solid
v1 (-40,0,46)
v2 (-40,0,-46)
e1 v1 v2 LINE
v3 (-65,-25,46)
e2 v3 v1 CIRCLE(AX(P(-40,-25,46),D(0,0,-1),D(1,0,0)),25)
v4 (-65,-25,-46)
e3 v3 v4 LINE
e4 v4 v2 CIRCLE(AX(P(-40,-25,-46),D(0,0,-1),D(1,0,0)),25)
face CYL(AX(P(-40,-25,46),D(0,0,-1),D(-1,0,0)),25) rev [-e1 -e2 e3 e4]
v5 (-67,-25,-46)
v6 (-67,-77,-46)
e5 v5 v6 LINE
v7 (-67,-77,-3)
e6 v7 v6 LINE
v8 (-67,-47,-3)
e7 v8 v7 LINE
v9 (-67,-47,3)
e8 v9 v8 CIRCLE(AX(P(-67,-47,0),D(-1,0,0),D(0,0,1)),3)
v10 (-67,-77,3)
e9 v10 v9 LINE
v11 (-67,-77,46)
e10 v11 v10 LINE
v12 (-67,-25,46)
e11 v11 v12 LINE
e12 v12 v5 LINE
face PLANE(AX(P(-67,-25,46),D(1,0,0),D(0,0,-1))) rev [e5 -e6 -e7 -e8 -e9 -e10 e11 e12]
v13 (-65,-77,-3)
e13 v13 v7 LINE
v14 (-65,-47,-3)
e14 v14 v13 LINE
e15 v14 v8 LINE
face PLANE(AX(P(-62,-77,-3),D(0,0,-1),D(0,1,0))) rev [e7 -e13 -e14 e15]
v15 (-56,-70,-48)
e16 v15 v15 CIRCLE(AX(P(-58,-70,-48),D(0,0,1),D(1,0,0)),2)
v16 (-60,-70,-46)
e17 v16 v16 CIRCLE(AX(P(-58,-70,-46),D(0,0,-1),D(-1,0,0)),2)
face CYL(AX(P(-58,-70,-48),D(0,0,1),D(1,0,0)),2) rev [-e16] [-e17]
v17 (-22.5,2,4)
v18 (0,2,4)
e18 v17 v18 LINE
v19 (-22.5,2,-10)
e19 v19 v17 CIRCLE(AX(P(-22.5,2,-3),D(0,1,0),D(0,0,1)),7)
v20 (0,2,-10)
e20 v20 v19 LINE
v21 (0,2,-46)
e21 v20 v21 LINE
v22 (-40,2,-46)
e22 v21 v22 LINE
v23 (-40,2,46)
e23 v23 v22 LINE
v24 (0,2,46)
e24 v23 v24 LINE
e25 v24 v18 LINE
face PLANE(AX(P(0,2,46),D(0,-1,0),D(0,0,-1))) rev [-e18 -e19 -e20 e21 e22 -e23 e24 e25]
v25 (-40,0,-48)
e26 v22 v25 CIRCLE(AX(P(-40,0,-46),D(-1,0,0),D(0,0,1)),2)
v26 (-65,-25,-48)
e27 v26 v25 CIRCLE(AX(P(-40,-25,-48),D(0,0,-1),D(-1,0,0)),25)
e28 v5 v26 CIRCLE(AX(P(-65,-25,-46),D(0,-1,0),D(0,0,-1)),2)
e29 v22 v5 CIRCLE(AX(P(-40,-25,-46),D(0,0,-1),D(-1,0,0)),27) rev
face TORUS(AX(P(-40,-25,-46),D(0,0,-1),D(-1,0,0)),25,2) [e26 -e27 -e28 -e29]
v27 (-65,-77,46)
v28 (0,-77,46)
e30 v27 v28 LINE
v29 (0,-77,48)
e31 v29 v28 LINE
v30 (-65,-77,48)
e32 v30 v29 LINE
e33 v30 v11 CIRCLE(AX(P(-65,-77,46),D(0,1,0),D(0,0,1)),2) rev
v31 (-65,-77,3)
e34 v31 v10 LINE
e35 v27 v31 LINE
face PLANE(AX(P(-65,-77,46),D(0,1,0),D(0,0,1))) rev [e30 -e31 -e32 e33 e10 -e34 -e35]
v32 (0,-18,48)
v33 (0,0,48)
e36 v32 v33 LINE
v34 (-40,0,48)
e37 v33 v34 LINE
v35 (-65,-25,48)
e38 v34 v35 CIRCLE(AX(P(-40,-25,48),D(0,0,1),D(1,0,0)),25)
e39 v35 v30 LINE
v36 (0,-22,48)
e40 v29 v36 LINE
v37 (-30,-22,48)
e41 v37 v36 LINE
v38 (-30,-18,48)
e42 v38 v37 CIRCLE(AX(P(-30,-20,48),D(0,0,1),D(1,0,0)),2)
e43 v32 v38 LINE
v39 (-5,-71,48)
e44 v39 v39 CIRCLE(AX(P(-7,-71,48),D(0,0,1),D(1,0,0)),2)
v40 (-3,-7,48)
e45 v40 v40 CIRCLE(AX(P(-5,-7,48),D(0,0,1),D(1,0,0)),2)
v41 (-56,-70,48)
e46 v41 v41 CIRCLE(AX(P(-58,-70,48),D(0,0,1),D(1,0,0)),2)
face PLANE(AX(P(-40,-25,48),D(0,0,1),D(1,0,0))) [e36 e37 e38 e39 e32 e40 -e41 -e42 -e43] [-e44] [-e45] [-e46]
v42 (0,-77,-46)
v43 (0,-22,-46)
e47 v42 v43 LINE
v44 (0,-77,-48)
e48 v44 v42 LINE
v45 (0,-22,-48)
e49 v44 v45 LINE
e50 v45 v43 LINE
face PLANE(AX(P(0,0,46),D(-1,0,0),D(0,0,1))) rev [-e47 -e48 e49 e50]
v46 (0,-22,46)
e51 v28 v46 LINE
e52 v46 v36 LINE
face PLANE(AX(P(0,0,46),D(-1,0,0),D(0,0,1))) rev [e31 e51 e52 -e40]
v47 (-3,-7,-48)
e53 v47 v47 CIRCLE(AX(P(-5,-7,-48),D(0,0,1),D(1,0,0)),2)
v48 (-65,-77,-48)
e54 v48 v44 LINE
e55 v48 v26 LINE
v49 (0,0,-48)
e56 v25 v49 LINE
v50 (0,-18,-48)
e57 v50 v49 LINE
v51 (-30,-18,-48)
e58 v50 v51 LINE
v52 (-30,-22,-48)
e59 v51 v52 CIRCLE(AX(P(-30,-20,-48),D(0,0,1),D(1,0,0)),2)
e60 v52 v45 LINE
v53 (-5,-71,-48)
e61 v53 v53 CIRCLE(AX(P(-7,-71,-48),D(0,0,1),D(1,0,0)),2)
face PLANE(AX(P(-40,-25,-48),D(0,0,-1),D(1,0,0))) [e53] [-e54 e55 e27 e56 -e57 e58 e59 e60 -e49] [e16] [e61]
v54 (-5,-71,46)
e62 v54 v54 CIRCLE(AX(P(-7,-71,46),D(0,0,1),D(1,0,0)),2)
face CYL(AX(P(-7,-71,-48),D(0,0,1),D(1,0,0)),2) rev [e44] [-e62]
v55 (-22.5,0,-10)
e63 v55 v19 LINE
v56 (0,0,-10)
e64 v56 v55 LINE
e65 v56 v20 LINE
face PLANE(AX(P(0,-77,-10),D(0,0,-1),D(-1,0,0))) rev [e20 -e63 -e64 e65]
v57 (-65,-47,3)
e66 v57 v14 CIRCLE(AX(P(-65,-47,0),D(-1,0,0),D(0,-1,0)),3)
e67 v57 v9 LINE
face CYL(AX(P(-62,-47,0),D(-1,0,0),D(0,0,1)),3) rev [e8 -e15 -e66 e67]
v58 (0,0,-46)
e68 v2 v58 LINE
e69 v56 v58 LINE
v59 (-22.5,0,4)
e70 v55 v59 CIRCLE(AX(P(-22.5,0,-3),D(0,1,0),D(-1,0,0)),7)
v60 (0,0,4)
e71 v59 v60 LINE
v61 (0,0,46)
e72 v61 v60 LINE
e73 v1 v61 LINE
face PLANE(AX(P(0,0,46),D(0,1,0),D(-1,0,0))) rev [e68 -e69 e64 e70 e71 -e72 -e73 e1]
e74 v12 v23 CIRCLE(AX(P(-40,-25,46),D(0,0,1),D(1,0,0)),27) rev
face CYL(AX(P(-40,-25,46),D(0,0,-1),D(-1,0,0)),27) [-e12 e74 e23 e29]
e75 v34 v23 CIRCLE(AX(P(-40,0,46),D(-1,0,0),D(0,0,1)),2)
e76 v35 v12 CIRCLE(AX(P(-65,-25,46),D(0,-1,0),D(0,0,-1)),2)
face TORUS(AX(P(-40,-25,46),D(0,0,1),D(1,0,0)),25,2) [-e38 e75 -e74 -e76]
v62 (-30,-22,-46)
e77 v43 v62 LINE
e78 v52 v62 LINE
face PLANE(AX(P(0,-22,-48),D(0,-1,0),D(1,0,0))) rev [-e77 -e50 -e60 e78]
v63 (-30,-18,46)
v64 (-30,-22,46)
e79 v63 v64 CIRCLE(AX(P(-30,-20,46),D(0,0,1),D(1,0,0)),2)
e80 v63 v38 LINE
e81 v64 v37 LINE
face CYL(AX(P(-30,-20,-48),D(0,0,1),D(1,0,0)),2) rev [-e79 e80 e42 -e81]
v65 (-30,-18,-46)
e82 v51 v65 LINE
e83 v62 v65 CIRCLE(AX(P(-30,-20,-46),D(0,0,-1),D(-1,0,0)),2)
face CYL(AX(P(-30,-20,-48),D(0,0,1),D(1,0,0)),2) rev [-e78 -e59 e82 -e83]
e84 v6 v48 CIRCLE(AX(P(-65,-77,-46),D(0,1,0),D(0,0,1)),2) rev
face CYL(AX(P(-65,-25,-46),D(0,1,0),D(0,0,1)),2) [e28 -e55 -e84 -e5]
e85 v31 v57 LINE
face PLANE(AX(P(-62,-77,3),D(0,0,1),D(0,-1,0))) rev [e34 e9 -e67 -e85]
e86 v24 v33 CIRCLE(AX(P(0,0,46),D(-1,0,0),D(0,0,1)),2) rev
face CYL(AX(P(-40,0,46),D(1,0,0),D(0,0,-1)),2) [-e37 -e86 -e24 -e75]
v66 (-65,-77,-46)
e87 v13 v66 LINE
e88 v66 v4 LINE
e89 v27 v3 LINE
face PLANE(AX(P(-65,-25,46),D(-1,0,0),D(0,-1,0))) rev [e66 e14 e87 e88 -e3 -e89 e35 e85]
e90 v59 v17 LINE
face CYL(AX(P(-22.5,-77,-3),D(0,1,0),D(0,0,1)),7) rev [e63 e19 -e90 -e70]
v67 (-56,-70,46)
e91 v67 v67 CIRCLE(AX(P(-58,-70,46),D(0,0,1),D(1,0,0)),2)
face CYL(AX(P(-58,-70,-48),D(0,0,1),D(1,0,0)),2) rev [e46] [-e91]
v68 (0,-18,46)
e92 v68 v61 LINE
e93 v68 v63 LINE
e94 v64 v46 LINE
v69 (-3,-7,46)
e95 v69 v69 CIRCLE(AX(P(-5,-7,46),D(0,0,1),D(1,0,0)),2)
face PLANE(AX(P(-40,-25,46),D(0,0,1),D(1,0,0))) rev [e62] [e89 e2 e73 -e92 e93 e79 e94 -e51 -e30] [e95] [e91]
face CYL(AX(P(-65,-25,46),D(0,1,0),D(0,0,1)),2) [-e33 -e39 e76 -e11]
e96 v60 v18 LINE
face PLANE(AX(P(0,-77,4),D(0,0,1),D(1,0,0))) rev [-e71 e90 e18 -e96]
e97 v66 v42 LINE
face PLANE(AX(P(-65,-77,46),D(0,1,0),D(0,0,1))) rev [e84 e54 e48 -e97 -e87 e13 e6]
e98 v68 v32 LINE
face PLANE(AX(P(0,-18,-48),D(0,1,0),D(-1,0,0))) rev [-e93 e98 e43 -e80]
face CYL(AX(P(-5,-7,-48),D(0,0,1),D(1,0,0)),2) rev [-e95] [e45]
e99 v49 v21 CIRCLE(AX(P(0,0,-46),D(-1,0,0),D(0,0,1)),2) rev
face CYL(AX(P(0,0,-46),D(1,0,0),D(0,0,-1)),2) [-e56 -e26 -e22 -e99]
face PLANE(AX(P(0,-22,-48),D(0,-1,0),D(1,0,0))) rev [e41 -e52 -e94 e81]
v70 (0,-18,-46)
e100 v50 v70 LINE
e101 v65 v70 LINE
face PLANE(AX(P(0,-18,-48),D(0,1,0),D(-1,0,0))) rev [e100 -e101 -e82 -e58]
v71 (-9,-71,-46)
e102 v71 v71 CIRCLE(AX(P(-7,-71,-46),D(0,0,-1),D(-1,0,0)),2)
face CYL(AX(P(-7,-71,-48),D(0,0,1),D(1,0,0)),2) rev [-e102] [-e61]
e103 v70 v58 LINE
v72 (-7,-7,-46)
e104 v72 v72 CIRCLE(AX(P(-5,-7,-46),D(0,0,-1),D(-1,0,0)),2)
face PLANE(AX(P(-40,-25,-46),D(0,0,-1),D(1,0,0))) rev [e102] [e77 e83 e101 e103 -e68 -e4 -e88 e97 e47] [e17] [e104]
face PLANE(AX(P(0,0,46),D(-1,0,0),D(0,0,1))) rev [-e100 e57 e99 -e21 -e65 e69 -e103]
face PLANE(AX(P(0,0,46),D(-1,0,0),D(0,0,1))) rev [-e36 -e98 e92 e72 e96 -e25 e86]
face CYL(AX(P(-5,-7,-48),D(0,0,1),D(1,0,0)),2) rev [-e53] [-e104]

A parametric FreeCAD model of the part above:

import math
import FreeCAD as App
import Part
import Sketcher
from FreeCAD import Vector


def edges_at(feature, points):
    """Names of the edges that pass closest to the given points."""
    edges = feature.Shape.Edges
    near = lambda p: min(range(len(edges)), key=lambda i: edges[i].distToShape(Part.Vertex(*p))[0])
    return sorted({f"Edge{near(p) + 1}" for p in points})

doc = App.newDocument("Part")
body = doc.addObject("PartDesign::Body", "Body")

# Sketch on XY plane
sketch1 = body.newObject("Sketcher::SketchObject", "Sketch")
sketch1.AttachmentSupport = (doc.getObject("XY_Plane"), [""])
sketch1.MapMode = "FlatFace"
sketch1.addGeometry(Part.LineSegment(Vector(-40, 0, 0), Vector(0, 0, 0)), False)
sketch1.addGeometry(Part.LineSegment(Vector(0, 0, 0), Vector(0, 2, 0)), False)
sketch1.addGeometry(Part.LineSegment(Vector(0, 2, 0), Vector(-40, 2, 0)), False)
sketch1.addGeometry(Part.ArcOfCircle(Part.Circle(Vector(-40, -25, 0), Vector(0, 0, 1), 27), math.radians(90), math.radians(180)), False)
sketch1.addGeometry(Part.LineSegment(Vector(-67, -25, 0), Vector(-67, -77, 0)), False)
sketch1.addGeometry(Part.LineSegment(Vector(-67, -77, 0), Vector(-65, -77, 0)), False)
sketch1.addGeometry(Part.LineSegment(Vector(-65, -77, 0), Vector(-65, -25, 0)), False)
sketch1.addGeometry(Part.ArcOfCircle(Part.Circle(Vector(-40, -25, 0), Vector(0, 0, 1), 25), math.radians(90), math.radians(180)), False)
sketch1.addConstraint(Sketcher.Constraint("Coincident", 0, 2, 1, 1))
sketch1.addConstraint(Sketcher.Constraint("Coincident", 1, 2, 2, 1))
sketch1.addConstraint(Sketcher.Constraint("Tangent", 2, 2, 3, 1))
sketch1.addConstraint(Sketcher.Constraint("Tangent", 3, 2, 4, 1))
sketch1.addConstraint(Sketcher.Constraint("Coincident", 4, 2, 5, 1))
sketch1.addConstraint(Sketcher.Constraint("Coincident", 5, 2, 6, 1))
sketch1.addConstraint(Sketcher.Constraint("Tangent", 6, 2, 7, 2))
sketch1.addConstraint(Sketcher.Constraint("Tangent", 7, 1, 0, 1))
sketch1.addConstraint(Sketcher.Constraint("Horizontal", 0))
sketch1.addConstraint(Sketcher.Constraint("Vertical", 1))
sketch1.addConstraint(Sketcher.Constraint("Horizontal", 2))
sketch1.addConstraint(Sketcher.Constraint("Vertical", 4))
sketch1.addConstraint(Sketcher.Constraint("Horizontal", 5))
sketch1.addConstraint(Sketcher.Constraint("Vertical", 6))
sketch1.addConstraint(Sketcher.Constraint("Coincident", 0, 2, -1, 1))
sketch1.addConstraint(Sketcher.Constraint("Coincident", 7, 3, 3, 3))
sketch1.addConstraint(Sketcher.Constraint("Radius", 3, 27.0))
sketch1.addConstraint(Sketcher.Constraint("Radius", 7, 25.0))
sketch1.addConstraint(Sketcher.Constraint("DistanceX", 0, 1, 0, 2, 40.0))
sketch1.addConstraint(Sketcher.Constraint("DistanceY", 4, 2, 4, 1, 52.0))
pad1 = body.newObject("PartDesign::Pad", "Pad")
pad1.Profile = sketch1
pad1.Length = 92
pad1.Midplane = True

# Sketch on XY plane
sketch2 = body.newObject("Sketcher::SketchObject", "Sketch001")
sketch2.AttachmentSupport = (doc.getObject("XY_Plane"), [""])
sketch2.MapMode = "FlatFace"
sketch2.AttachmentOffset = App.Placement(Vector(0, 0, 48), App.Rotation())
sketch2.addGeometry(Part.LineSegment(Vector(-67, -25, 0), Vector(-67, -77, 0)), False)
sketch2.addGeometry(Part.LineSegment(Vector(-67, -77, 0), Vector(0, -77, 0)), False)
sketch2.addGeometry(Part.LineSegment(Vector(0, -77, 0), Vector(0, 2, 0)), False)
sketch2.addGeometry(Part.LineSegment(Vector(0, 2, 0), Vector(-40, 2, 0)), False)
sketch2.addGeometry(Part.ArcOfCircle(Part.Circle(Vector(-40, -25, 0), Vector(0, 0, 1), 27), math.radians(90), math.radians(180)), False)
sketch2.addConstraint(Sketcher.Constraint("Coincident", 0, 2, 1, 1))
sketch2.addConstraint(Sketcher.Constraint("Coincident", 1, 2, 2, 1))
sketch2.addConstraint(Sketcher.Constraint("Coincident", 2, 2, 3, 1))
sketch2.addConstraint(Sketcher.Constraint("Tangent", 3, 2, 4, 1))
sketch2.addConstraint(Sketcher.Constraint("Tangent", 4, 2, 0, 1))
sketch2.addConstraint(Sketcher.Constraint("Vertical", 0))
sketch2.addConstraint(Sketcher.Constraint("Horizontal", 1))
sketch2.addConstraint(Sketcher.Constraint("Vertical", 2))
sketch2.addConstraint(Sketcher.Constraint("Horizontal", 3))
sketch2.addConstraint(Sketcher.Constraint("PointOnObject", 1, 2, -2))
sketch2.addConstraint(Sketcher.Constraint("Radius", 4, 27.0))
sketch2.addConstraint(Sketcher.Constraint("DistanceX", 1, 1, 1, 2, 67.0))
sketch2.addConstraint(Sketcher.Constraint("DistanceY", 0, 2, 0, 1, 52.0))
sketch2.addConstraint(Sketcher.Constraint("DistanceY", 4, 3, -1, 1, 25.0))
pad2 = body.newObject("PartDesign::Pad", "Pad001")
pad2.Profile = sketch2
pad2.Length = 2
pad2.Reversed = True
doc.recompute()

mirrored = body.newObject("PartDesign::Mirrored", "Mirrored")
mirrored.Originals = [pad2]
mirrored.MirrorPlane = (doc.getObject("XY_Plane"), [""])
body.Tip = mirrored
doc.recompute()

fillet = body.newObject("PartDesign::Fillet", "Fillet")
fillet.Base = (mirrored, edges_at(mirrored, [
    (-59.092, -5.908, 48),
    (-67, -51, 48),
    (-20, 2, 48),
    (-59.092, -5.908, -48),
    (-20, 2, -48),
    (-67, -51, -48),
]))
fillet.Radius = 2

# Sketch on YZ plane
sketch3 = body.newObject("Sketcher::SketchObject", "Sketch002")
sketch3.AttachmentSupport = (doc.getObject("YZ_Plane"), [""])
sketch3.MapMode = "FlatFace"
sketch3.AttachmentOffset = App.Placement(Vector(0, 0, -67), App.Rotation())
sketch3.addGeometry(Part.LineSegment(Vector(-47, -3, 0), Vector(-77, -3, 0)), False)
sketch3.addGeometry(Part.ArcOfCircle(Part.Circle(Vector(-77, 0, 0), Vector(0, 0, 1), 3), math.radians(90), math.radians(270)), False)
sketch3.addGeometry(Part.LineSegment(Vector(-77, 3, 0), Vector(-47, 3, 0)), False)
sketch3.addGeometry(Part.ArcOfCircle(Part.Circle(Vector(-47, 0, 0), Vector(0, 0, 1), 3), math.radians(-90), math.radians(90)), False)
sketch3.addConstraint(Sketcher.Constraint("Tangent", 0, 2, 1, 2))
sketch3.addConstraint(Sketcher.Constraint("Tangent", 1, 1, 2, 1))
sketch3.addConstraint(Sketcher.Constraint("Tangent", 2, 2, 3, 2))
sketch3.addConstraint(Sketcher.Constraint("Tangent", 3, 1, 0, 1))
sketch3.addConstraint(Sketcher.Constraint("Horizontal", 0))
sketch3.addConstraint(Sketcher.Constraint("Horizontal", 2))
sketch3.addConstraint(Sketcher.Constraint("PointOnObject", 1, 3, -1))
sketch3.addConstraint(Sketcher.Constraint("Radius", 1, 3.0))
sketch3.addConstraint(Sketcher.Constraint("DistanceX", 0, 2, 0, 1, 30.0))
sketch3.addConstraint(Sketcher.Constraint("DistanceX", 1, 3, -1, 1, 77.0))
pocket1 = body.newObject("PartDesign::Pocket", "Pocket")
pocket1.Profile = sketch3
pocket1.Length = 5
pocket1.Reversed = True

# Sketch on XY plane
sketch4 = body.newObject("Sketcher::SketchObject", "Sketch003")
sketch4.AttachmentSupport = (doc.getObject("XY_Plane"), [""])
sketch4.MapMode = "FlatFace"
sketch4.AttachmentOffset = App.Placement(Vector(0, 0, 48), App.Rotation())
sketch4.addGeometry(Part.LineSegment(Vector(-30, -22, 0), Vector(0, -22, 0)), False)
sketch4.addGeometry(Part.ArcOfCircle(Part.Circle(Vector(0, -20, 0), Vector(0, 0, 1), 2), math.radians(-90), math.radians(90)), False)
sketch4.addGeometry(Part.LineSegment(Vector(0, -18, 0), Vector(-30, -18, 0)), False)
sketch4.addGeometry(Part.ArcOfCircle(Part.Circle(Vector(-30, -20, 0), Vector(0, 0, 1), 2), math.radians(90), math.radians(270)), False)
sketch4.addConstraint(Sketcher.Constraint("Tangent", 0, 2, 1, 1))
sketch4.addConstraint(Sketcher.Constraint("Tangent", 1, 2, 2, 1))
sketch4.addConstraint(Sketcher.Constraint("Tangent", 2, 2, 3, 1))
sketch4.addConstraint(Sketcher.Constraint("Tangent", 3, 2, 0, 1))
sketch4.addConstraint(Sketcher.Constraint("Horizontal", 0))
sketch4.addConstraint(Sketcher.Constraint("Horizontal", 2))
sketch4.addConstraint(Sketcher.Constraint("PointOnObject", 1, 3, -2))
sketch4.addConstraint(Sketcher.Constraint("Radius", 1, 2.0))
sketch4.addConstraint(Sketcher.Constraint("DistanceX", 0, 1, 0, 2, 30.0))
sketch4.addConstraint(Sketcher.Constraint("DistanceY", 1, 3, -1, 1, 20.0))
pocket2 = body.newObject("PartDesign::Pocket", "Pocket001")
pocket2.Profile = sketch4
pocket2.Type = "ThroughAll"

# Sketch on XZ plane
sketch5 = body.newObject("Sketcher::SketchObject", "Sketch004")
sketch5.AttachmentSupport = (doc.getObject("XZ_Plane"), [""])
sketch5.MapMode = "FlatFace"
sketch5.AttachmentOffset = App.Placement(Vector(0, 0, -2), App.Rotation())
sketch5.addGeometry(Part.LineSegment(Vector(-22, 4, 0), Vector(0, 4, 0)), False)
sketch5.addGeometry(Part.ArcOfCircle(Part.Circle(Vector(0, -3, 0), Vector(0, 0, 1), 7), math.radians(-90), math.radians(90)), False)
sketch5.addGeometry(Part.LineSegment(Vector(0, -10, 0), Vector(-22, -10, 0)), False)
sketch5.addGeometry(Part.ArcOfCircle(Part.Circle(Vector(-22, -3, 0), Vector(0, 0, 1), 7), math.radians(90), math.radians(270)), False)
sketch5.addConstraint(Sketcher.Constraint("Tangent", 0, 2, 1, 2))
sketch5.addConstraint(Sketcher.Constraint("Tangent", 1, 1, 2, 1))
sketch5.addConstraint(Sketcher.Constraint("Tangent", 2, 2, 3, 2))
sketch5.addConstraint(Sketcher.Constraint("Tangent", 3, 1, 0, 1))
sketch5.addConstraint(Sketcher.Constraint("Horizontal", 0))
sketch5.addConstraint(Sketcher.Constraint("Horizontal", 2))
sketch5.addConstraint(Sketcher.Constraint("PointOnObject", 1, 3, -2))
sketch5.addConstraint(Sketcher.Constraint("Radius", 1, 7.0))
sketch5.addConstraint(Sketcher.Constraint("DistanceX", 0, 1, 0, 2, 22.5))
sketch5.addConstraint(Sketcher.Constraint("DistanceY", 1, 3, -1, 1, 3.0))
pocket3 = body.newObject("PartDesign::Pocket", "Pocket002")
pocket3.Profile = sketch5
pocket3.Type = "ThroughAll"
pocket3.Reversed = True

# Sketch on XY plane
sketch6 = body.newObject("Sketcher::SketchObject", "Sketch005")
sketch6.AttachmentSupport = (doc.getObject("XY_Plane"), [""])
sketch6.MapMode = "FlatFace"
sketch6.AttachmentOffset = App.Placement(Vector(0, 0, 48), App.Rotation())
sketch6.addGeometry(Part.Circle(Vector(-5, -7, 0), Vector(0, 0, 1), 2), False)
sketch6.addGeometry(Part.Circle(Vector(-7, -71, 0), Vector(0, 0, 1), 2), False)
sketch6.addGeometry(Part.Circle(Vector(-58, -70, 0), Vector(0, 0, 1), 2), False)
sketch6.addConstraint(Sketcher.Constraint("Equal", 0, 1))
sketch6.addConstraint(Sketcher.Constraint("Equal", 1, 2))
sketch6.addConstraint(Sketcher.Constraint("Diameter", 0, 4.0))
sketch6.addConstraint(Sketcher.Constraint("DistanceX", 0, 3, -1, 1, 5.0))
sketch6.addConstraint(Sketcher.Constraint("DistanceY", 0, 3, -1, 1, 7.0))
sketch6.addConstraint(Sketcher.Constraint("DistanceX", 1, 3, -1, 1, 7.0))
sketch6.addConstraint(Sketcher.Constraint("DistanceY", 1, 3, -1, 1, 71.0))
sketch6.addConstraint(Sketcher.Constraint("DistanceX", 2, 3, -1, 1, 58.0))
sketch6.addConstraint(Sketcher.Constraint("DistanceY", 2, 3, -1, 1, 70.0))
pocket4 = body.newObject("PartDesign::Pocket", "Pocket003")
pocket4.Profile = sketch6
pocket4.Type = "ThroughAll"

doc.recompute()
